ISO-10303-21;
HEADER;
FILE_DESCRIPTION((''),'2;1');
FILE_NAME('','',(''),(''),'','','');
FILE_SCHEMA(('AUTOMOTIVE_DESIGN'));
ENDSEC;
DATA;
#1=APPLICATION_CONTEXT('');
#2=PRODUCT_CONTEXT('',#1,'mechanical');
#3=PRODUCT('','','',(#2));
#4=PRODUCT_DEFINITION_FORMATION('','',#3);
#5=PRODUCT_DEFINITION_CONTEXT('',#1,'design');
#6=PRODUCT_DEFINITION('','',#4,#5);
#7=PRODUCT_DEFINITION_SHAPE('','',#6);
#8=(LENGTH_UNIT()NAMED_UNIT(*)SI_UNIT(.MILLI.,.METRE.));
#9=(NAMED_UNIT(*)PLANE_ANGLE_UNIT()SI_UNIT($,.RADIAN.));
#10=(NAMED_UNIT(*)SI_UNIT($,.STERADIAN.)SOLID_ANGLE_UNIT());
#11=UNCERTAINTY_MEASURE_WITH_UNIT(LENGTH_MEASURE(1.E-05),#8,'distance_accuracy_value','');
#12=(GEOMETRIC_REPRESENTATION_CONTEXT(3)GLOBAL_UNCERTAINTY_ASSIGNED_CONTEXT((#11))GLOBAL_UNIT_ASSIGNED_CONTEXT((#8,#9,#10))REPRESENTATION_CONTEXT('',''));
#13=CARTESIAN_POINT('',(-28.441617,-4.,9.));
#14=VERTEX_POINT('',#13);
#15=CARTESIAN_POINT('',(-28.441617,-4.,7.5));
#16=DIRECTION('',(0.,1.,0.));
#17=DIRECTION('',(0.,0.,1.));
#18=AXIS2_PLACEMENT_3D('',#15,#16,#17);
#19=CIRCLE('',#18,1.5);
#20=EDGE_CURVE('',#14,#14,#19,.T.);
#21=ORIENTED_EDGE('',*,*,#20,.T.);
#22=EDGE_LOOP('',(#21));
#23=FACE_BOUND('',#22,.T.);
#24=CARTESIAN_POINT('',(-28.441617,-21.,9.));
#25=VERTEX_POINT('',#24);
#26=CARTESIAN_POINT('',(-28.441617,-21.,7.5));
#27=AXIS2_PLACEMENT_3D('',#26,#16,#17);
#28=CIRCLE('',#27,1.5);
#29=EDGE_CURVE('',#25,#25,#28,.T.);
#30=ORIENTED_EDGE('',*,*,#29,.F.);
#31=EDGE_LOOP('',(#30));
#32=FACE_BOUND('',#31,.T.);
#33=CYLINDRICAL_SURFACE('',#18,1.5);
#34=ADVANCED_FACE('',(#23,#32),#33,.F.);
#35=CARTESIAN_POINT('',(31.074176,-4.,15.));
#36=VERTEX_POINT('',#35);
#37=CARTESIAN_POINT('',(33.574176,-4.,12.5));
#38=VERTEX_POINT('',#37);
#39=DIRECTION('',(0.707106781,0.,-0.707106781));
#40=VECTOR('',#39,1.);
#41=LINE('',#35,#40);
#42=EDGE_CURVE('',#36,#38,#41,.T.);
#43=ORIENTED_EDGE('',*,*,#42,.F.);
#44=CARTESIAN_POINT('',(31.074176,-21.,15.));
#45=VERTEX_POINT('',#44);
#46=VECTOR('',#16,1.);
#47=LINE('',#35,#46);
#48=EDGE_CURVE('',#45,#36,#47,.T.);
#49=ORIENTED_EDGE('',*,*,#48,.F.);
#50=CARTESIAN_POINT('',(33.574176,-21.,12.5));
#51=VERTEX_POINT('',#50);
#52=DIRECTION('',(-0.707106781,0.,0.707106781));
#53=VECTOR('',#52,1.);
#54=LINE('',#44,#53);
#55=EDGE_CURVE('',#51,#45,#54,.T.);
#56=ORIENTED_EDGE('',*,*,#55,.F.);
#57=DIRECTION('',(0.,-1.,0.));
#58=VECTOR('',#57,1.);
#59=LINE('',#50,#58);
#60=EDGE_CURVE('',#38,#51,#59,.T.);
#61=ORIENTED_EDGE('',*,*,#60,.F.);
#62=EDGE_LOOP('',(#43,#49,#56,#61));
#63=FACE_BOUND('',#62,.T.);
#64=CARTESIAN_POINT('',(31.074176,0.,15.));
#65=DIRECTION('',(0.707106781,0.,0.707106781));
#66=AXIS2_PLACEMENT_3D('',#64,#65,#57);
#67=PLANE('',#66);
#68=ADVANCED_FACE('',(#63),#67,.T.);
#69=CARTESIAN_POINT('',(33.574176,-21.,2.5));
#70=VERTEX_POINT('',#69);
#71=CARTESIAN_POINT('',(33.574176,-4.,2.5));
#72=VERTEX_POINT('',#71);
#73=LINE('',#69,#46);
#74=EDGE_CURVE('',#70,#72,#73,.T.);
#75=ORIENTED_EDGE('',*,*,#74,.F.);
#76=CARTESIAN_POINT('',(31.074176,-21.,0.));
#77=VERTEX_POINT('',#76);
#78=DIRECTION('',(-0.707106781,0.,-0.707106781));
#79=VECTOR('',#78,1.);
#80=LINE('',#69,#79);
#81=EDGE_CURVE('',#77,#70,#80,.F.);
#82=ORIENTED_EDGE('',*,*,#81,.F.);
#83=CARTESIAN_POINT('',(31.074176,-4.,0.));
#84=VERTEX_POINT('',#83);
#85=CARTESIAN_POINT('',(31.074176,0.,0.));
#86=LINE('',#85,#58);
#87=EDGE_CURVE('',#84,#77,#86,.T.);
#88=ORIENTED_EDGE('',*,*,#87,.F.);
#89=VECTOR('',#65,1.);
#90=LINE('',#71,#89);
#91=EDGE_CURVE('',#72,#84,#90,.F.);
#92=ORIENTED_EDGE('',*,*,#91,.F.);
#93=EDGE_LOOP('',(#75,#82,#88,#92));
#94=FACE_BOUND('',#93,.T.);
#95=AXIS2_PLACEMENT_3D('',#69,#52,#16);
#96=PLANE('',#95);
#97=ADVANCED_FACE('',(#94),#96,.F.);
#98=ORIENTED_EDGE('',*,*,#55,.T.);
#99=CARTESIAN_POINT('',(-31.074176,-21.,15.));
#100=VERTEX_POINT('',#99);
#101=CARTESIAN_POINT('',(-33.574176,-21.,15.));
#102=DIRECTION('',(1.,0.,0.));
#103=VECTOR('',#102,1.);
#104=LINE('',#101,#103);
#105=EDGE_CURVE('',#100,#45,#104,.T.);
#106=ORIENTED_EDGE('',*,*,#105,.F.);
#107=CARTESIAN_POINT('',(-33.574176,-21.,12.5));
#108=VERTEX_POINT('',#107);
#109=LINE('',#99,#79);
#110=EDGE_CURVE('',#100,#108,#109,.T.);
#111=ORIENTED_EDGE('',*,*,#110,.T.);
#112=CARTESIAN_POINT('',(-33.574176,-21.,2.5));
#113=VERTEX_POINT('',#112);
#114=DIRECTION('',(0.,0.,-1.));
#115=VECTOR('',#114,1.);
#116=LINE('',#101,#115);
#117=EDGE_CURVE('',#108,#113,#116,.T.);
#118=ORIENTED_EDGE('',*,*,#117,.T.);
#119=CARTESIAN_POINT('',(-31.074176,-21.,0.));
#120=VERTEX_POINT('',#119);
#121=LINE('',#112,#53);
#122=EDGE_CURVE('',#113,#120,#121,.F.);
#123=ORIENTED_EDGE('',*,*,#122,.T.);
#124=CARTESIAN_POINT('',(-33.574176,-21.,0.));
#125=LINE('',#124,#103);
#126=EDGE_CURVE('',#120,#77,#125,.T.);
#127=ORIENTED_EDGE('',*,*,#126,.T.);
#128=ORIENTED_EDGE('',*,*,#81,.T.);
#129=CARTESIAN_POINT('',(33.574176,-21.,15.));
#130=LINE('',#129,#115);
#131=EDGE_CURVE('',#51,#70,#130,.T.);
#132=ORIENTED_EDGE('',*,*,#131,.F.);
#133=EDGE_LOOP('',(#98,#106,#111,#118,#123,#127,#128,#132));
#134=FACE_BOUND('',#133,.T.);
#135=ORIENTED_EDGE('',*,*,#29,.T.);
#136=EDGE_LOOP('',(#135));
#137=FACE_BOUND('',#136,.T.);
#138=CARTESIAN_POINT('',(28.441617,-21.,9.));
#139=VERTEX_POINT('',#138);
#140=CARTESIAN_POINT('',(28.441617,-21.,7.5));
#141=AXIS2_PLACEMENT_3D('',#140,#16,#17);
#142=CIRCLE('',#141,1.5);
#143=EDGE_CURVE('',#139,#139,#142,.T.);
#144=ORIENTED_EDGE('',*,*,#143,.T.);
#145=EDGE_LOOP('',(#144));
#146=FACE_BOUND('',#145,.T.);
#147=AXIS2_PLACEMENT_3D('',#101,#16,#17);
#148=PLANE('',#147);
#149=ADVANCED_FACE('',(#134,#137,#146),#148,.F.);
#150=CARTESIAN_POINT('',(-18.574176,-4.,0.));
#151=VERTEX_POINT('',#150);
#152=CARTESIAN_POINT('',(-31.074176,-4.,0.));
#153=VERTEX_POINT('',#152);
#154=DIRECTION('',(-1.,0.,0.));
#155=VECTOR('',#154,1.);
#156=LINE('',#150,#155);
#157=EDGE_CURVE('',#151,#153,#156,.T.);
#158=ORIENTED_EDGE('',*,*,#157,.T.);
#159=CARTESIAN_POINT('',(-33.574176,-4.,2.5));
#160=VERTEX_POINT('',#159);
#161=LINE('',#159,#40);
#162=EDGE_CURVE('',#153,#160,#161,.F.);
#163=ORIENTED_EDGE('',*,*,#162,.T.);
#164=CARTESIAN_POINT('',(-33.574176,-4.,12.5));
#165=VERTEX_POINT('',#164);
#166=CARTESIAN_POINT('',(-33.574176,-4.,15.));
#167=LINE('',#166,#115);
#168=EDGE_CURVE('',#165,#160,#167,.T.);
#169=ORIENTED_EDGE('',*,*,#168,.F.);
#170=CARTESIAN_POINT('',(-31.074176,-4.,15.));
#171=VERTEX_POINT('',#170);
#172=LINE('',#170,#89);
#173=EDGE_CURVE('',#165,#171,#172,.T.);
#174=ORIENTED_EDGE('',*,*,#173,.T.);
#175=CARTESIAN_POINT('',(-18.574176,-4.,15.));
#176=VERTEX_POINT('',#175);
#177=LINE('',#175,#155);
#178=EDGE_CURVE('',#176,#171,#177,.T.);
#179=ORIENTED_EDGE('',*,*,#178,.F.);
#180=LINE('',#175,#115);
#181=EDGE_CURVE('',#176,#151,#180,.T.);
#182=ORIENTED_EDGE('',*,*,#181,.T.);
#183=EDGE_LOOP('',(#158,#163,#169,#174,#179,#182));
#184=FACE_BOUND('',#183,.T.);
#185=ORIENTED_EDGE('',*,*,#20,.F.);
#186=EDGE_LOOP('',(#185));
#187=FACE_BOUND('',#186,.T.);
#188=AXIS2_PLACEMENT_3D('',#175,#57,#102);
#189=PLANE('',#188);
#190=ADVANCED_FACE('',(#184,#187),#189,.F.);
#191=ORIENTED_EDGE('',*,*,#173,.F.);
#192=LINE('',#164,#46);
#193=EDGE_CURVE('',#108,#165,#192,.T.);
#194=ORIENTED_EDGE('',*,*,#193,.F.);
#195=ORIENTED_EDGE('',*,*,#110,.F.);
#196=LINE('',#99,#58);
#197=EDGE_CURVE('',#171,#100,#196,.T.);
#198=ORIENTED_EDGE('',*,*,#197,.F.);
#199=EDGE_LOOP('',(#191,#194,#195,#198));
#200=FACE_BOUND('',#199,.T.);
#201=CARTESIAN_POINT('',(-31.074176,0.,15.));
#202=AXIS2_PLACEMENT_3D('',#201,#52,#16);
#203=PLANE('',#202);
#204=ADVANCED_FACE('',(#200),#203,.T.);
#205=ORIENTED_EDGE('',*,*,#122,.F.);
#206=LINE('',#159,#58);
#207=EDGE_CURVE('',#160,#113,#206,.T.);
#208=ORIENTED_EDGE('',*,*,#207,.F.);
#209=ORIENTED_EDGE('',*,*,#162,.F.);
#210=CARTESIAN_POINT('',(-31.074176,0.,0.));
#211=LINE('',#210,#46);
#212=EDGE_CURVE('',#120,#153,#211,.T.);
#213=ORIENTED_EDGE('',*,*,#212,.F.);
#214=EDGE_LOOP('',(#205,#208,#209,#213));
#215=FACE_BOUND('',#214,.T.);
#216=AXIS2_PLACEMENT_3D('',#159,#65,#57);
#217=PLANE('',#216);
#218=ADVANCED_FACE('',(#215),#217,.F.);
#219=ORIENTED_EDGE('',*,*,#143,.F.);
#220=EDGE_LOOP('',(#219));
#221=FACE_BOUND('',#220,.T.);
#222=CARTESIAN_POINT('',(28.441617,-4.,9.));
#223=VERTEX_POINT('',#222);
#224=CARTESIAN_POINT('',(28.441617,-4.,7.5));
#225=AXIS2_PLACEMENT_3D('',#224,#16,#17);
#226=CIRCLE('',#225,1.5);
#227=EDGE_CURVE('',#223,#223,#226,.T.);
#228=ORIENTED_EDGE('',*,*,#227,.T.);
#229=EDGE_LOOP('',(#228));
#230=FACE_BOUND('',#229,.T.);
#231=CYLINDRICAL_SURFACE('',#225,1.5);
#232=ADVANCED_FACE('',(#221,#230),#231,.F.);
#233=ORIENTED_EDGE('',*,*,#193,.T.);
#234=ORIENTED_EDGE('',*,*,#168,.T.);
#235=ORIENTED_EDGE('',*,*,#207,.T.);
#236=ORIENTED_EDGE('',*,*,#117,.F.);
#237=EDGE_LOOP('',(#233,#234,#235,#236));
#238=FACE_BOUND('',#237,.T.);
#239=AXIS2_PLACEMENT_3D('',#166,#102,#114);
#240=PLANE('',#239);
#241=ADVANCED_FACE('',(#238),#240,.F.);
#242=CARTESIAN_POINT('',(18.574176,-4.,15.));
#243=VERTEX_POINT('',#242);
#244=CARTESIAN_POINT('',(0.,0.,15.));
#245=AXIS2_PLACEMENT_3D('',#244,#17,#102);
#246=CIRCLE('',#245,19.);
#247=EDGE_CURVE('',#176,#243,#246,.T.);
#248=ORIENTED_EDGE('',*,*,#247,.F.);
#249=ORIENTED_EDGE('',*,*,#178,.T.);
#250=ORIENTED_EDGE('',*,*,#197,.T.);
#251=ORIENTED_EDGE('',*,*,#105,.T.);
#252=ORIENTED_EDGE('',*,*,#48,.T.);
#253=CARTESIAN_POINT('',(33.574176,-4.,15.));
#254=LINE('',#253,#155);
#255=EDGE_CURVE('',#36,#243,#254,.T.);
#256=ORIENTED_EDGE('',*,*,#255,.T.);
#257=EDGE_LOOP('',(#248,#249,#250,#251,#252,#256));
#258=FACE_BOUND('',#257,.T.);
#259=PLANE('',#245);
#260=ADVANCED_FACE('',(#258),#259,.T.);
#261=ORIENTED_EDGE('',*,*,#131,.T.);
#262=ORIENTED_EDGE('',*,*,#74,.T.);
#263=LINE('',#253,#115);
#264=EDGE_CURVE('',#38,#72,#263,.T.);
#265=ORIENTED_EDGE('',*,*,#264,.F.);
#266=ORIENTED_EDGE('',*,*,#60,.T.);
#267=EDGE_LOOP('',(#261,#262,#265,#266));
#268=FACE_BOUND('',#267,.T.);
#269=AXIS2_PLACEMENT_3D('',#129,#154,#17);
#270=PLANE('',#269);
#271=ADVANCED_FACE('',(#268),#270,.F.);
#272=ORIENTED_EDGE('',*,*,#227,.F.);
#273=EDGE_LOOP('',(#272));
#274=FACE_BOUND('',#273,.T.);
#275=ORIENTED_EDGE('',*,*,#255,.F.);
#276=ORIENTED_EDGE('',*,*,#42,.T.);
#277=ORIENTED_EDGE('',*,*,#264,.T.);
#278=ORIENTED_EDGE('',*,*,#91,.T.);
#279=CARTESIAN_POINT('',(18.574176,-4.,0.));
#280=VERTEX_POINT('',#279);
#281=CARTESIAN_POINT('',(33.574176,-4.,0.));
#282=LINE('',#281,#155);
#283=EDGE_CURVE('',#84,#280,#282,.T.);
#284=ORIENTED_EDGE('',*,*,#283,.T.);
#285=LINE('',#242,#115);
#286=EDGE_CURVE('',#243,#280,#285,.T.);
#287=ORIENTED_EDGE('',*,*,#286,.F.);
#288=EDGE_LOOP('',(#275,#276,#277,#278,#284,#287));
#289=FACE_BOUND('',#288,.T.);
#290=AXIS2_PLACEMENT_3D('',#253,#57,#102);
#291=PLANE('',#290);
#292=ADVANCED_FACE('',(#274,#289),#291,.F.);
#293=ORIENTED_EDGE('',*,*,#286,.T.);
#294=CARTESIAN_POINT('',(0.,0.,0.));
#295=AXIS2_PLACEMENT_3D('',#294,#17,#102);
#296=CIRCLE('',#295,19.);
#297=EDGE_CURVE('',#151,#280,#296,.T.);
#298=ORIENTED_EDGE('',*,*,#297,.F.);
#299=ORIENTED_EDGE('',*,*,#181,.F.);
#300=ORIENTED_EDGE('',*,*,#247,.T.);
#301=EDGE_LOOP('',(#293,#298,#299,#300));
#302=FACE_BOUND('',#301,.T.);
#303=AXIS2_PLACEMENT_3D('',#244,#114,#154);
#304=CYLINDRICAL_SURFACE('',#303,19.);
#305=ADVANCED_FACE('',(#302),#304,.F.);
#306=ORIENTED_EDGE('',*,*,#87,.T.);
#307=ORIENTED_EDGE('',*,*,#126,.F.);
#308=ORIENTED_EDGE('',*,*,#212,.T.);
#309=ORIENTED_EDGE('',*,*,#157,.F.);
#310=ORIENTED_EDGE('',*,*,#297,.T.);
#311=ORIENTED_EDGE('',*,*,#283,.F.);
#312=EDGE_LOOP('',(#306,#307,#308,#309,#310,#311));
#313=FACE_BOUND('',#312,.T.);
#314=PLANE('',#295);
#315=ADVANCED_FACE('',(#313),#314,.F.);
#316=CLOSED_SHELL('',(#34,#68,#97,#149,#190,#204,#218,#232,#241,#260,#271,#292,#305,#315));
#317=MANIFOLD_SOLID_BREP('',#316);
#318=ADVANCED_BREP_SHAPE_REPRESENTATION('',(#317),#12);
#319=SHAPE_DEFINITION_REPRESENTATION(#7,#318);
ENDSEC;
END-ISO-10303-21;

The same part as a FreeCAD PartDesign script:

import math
import FreeCAD as App
import Part
import Sketcher
from FreeCAD import Vector
Q = App.Units.Quantity


def edges_at(feature, points):
    """Names of the edges that pass closest to the given points."""
    edges = feature.Shape.Edges
    near = lambda p: min(range(len(edges)), key=lambda i: edges[i].distToShape(Part.Vertex(*p))[0])
    return sorted({f"Edge{near(p) + 1}" for p in points})

doc = App.newDocument("Part")
body = doc.addObject("PartDesign::Body", "Body")

# Sketch on XY plane
sketch1 = doc.addObject("Sketcher::SketchObject", "Sketch")
body.addObject(sketch1)
sketch1.AttachmentSupport = (doc.XY_Plane, [""])
sketch1.MapMode = "FlatFace"
sketch1.addGeometry([
    Part.LineSegment(Vector(-19, -4, 0), Vector(-34, -4, 0)),  # 0
    Part.LineSegment(Vector(-34, -4, 0), Vector(-34, -21, 0)),  # 1
    Part.LineSegment(Vector(-34, -21, 0), Vector(34, -21, 0)),  # 2
    Part.LineSegment(Vector(34, -21, 0), Vector(34, -4, 0)),  # 3
    Part.LineSegment(Vector(34, -4, 0), Vector(19, -4, 0)),  # 4
    Part.ArcOfCircle(Part.Circle(Vector(0, 0, 0), Vector(0, 0, 1), 19), math.radians(-168), math.radians(-12)),  # 5
], False)
sketch1.addConstraint([
    Sketcher.Constraint("Coincident", 0, 2, 1, 1),
    Sketcher.Constraint("Coincident", 1, 2, 2, 1),
    Sketcher.Constraint("Coincident", 2, 2, 3, 1),
    Sketcher.Constraint("Coincident", 3, 2, 4, 1),
    Sketcher.Constraint("Coincident", 4, 2, 5, 2),
    Sketcher.Constraint("Coincident", 5, 1, 0, 1),
    Sketcher.Constraint("Horizontal", 0),
    Sketcher.Constraint("Vertical", 1),
    Sketcher.Constraint("Horizontal", 2),
    Sketcher.Constraint("Vertical", 3),
    Sketcher.Constraint("Horizontal", 4),
    Sketcher.Constraint("Coincident", 5, 3, -1, 1),
    Sketcher.Constraint("Symmetric", 0, 2, 3, 2, -2),
    Sketcher.Constraint("Radius", 5, Q("19 mm")),
    Sketcher.Constraint("DistanceX", 0, 2, 0, 1, Q("15 mm")),
    Sketcher.Constraint("DistanceY", 1, 2, 1, 1, Q("17 mm")),
    Sketcher.Constraint("DistanceY", 0, 2, -1, 1, Q("4 mm")),
])
pad1 = doc.addObject("PartDesign::Pad", "Pad")
body.addObject(pad1)
pad1.Profile = sketch1
pad1.Length = 15
doc.recompute()

chamfer = doc.addObject("PartDesign::Chamfer", "Chamfer")
body.addObject(chamfer)
chamfer.Base = (pad1, edges_at(pad1, [
    (-33.574, -12.5, 15),
    (33.574, -12.5, 15),
    (-33.574, -12.5, 0),
    (33.574, -12.5, 0),
]))
chamfer.Size = 2.5

# Sketch on XZ plane
sketch2 = doc.addObject("Sketcher::SketchObject", "Sketch001")
body.addObject(sketch2)
sketch2.AttachmentSupport = (doc.XZ_Plane, [""])
sketch2.MapMode = "FlatFace"
sketch2.AttachmentOffset = App.Placement(Vector(0, 0, 4), App.Rotation())
sketch2.addGeometry([
    Part.Circle(Vector(28.4, 7.5, 0), Vector(0, 0, 1), 1.4),
    Part.Circle(Vector(-28.4, 7.5, 0), Vector(0, 0, 1), 1.4),
], False)
sketch2.addConstraint([
    Sketcher.Constraint("Equal", 0, 1),
    Sketcher.Constraint("Symmetric", 0, 3, 1, 3, -2),
    Sketcher.Constraint("Diameter", 0, Q("2.8 mm")),
    Sketcher.Constraint("DistanceY", -1, 1, 0, 3, Q("7.5 mm")),
    Sketcher.Constraint("DistanceX", -1, 1, 0, 3, Q("28.441617 mm")),
])
pocket1 = doc.addObject("PartDesign::Pocket", "Pocket")
body.addObject(pocket1)
pocket1.Profile = sketch2
pocket1.Type = "ThroughAll"
pocket1.Reversed = True

# Sketch on XZ plane
sketch3 = doc.addObject("Sketcher::SketchObject", "Sketch002")
body.addObject(sketch3)
sketch3.AttachmentSupport = (doc.XZ_Plane, [""])
sketch3.MapMode = "FlatFace"
sketch3.AttachmentOffset = App.Placement(Vector(0, 0, 4), App.Rotation())
sketch3.addGeometry([
    Part.Circle(Vector(-28.4, 7.5, 0), Vector(0, 0, 1), 1.5),
    Part.Circle(Vector(28.4, 7.5, 0), Vector(0, 0, 1), 1.5),
], False)
sketch3.addConstraint([
    Sketcher.Constraint("Equal", 0, 1),
    Sketcher.Constraint("Symmetric", 0, 3, 1, 3, -2),
    Sketcher.Constraint("Diameter", 0, Q("3 mm")),
    Sketcher.Constraint("DistanceY", -1, 1, 0, 3, Q("7.5 mm")),
    Sketcher.Constraint("DistanceX", 0, 3, -1, 1, Q("28.441617 mm")),
])
doc.recompute()
hole = doc.addObject("PartDesign::Hole", "Hole")
body.addObject(hole)
hole.Profile = sketch3
hole.ThreadType = "None"
hole.Diameter = 3
hole.DepthType = "Dimension"
hole.Depth = 31.098709
hole.DrillPoint = "Angled"
hole.DrillPointAngle = 118
hole.Reversed = True

doc.recompute()
